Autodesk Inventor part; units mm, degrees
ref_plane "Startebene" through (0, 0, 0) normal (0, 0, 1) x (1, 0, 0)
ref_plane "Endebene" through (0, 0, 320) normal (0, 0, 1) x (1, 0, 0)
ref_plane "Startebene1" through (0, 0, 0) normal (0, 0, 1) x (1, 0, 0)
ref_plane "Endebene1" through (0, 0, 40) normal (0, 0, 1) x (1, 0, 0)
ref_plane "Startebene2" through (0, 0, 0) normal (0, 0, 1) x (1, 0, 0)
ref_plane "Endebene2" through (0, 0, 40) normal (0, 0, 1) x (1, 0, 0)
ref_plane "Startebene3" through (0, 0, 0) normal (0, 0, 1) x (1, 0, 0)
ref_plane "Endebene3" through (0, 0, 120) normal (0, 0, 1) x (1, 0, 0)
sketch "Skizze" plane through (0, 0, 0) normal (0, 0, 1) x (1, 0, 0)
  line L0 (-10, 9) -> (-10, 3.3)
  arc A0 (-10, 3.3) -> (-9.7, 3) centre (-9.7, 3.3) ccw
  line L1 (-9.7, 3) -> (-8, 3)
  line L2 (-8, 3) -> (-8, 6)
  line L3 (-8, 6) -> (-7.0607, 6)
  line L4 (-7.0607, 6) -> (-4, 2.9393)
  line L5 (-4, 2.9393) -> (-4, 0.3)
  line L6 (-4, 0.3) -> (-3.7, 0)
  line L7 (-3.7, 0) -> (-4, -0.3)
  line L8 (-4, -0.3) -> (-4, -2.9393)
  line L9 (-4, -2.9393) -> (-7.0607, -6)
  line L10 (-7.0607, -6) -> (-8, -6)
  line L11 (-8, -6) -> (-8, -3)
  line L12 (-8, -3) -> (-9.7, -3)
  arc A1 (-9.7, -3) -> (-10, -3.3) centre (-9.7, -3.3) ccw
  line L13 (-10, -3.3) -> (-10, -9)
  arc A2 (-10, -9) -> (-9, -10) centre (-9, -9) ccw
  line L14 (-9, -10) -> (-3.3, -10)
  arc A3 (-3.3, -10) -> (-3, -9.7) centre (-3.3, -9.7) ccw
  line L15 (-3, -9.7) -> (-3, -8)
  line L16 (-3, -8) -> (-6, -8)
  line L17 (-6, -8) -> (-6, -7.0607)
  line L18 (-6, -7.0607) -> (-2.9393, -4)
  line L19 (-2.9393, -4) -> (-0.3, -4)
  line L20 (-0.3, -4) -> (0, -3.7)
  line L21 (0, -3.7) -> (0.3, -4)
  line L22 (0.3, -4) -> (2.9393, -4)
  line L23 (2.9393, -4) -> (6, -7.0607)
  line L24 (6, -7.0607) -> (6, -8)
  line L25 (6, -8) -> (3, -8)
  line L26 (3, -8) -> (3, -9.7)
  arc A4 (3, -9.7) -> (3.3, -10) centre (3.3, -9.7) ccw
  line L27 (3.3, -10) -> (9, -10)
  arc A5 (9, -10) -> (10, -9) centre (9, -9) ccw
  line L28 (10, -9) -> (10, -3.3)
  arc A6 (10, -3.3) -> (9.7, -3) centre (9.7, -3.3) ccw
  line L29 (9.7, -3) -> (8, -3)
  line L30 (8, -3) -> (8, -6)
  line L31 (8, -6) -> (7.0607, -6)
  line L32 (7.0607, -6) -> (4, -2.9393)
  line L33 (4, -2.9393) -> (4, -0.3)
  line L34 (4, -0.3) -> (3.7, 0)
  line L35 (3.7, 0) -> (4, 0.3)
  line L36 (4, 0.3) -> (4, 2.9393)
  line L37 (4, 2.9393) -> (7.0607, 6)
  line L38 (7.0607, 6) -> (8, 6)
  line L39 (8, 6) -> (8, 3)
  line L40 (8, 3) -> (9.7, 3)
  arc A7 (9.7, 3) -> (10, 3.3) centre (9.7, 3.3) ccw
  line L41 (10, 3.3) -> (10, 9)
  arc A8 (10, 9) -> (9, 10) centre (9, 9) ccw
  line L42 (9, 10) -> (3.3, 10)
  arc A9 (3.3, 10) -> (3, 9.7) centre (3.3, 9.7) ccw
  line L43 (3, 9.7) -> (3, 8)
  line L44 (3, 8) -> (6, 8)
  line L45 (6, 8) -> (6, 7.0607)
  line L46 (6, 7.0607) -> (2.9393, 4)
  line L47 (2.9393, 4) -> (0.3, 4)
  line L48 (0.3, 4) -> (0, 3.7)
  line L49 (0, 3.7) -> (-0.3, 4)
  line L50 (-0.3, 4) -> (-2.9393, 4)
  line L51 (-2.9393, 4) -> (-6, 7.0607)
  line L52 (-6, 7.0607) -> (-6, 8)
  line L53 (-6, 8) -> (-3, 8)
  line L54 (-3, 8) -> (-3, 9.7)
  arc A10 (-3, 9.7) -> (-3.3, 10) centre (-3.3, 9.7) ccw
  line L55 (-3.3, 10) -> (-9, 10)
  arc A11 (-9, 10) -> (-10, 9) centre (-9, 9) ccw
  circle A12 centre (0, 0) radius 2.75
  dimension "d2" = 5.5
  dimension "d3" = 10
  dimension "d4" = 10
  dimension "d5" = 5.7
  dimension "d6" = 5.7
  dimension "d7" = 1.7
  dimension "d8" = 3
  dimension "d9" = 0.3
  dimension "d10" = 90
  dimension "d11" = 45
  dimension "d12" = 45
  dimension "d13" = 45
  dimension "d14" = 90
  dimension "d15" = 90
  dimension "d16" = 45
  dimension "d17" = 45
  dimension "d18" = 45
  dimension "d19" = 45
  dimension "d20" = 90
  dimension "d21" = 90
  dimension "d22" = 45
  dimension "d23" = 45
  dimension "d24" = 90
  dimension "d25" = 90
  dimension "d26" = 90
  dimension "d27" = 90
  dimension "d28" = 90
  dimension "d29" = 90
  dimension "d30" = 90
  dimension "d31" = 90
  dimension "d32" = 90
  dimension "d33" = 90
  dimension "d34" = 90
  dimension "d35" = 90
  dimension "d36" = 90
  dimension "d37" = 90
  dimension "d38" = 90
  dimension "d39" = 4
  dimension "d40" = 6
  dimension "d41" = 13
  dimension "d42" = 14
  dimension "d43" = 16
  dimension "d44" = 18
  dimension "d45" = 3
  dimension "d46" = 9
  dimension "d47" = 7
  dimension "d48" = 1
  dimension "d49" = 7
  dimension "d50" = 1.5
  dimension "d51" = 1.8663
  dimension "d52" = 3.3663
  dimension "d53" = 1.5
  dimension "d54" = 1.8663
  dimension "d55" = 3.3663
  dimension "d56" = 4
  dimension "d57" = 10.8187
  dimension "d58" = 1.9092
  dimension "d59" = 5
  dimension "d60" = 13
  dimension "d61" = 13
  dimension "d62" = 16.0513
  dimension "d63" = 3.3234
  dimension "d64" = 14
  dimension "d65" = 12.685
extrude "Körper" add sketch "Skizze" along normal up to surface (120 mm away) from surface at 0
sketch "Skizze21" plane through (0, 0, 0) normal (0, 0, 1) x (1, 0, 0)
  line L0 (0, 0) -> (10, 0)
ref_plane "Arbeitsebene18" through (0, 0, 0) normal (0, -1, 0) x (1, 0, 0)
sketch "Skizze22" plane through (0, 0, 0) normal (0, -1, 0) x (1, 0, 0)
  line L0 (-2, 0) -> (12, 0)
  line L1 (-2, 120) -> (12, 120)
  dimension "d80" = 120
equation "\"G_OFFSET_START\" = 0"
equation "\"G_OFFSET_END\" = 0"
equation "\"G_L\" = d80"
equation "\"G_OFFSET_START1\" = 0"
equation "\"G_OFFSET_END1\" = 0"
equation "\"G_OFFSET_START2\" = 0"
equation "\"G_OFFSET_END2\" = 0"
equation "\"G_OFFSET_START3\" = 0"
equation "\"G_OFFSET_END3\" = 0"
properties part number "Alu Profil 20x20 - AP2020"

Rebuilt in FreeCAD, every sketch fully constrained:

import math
import FreeCAD as App
import Part
import Sketcher
Q = App.Units.Quantity

doc = App.newDocument("Part")
body = doc.addObject("PartDesign::Body", "Body")

sketch1 = doc.addObject("Sketcher::SketchObject", "Sketch")
body.addObject(sketch1)
sketch1.AttachmentSupport = (doc.XY_Plane, [""])
sketch1.MapMode = "FlatFace"
sketch1.addGeometry([
    Part.ArcOfCircle(Part.Circle(App.Vector(-9, 9, 0), App.Vector(0, 0, 1), 1), math.radians(90), math.radians(180)),
    Part.LineSegment(App.Vector(-10, 9, 0), App.Vector(-10, 3.3, 0)),
    Part.ArcOfCircle(Part.Circle(App.Vector(-9.7, 3.3, 0), App.Vector(0, 0, 1), 0.3), math.radians(180), math.radians(270)),
    Part.LineSegment(App.Vector(-9.7, 3, 0), App.Vector(-8, 3, 0)),
    Part.LineSegment(App.Vector(-8, 3, 0), App.Vector(-8, 6, 0)),
    Part.LineSegment(App.Vector(-8, 6, 0), App.Vector(-7.0607, 6, 0)),
    Part.LineSegment(App.Vector(-7.0607, 6, 0), App.Vector(-4, 2.9393, 0)),
    Part.LineSegment(App.Vector(-4, 2.9393, 0), App.Vector(-4, 0.3, 0)),
    Part.LineSegment(App.Vector(-4, 0.3, 0), App.Vector(-3.7, 0, 0)),
    Part.LineSegment(App.Vector(-3.7, 0, 0), App.Vector(-4, -0.3, 0)),
    Part.LineSegment(App.Vector(-4, -0.3, 0), App.Vector(-4, -2.9393, 0)),
    Part.LineSegment(App.Vector(-4, -2.9393, 0), App.Vector(-7.0607, -6, 0)),
    Part.LineSegment(App.Vector(-7.0607, -6, 0), App.Vector(-8, -6, 0)),
    Part.LineSegment(App.Vector(-8, -6, 0), App.Vector(-8, -3, 0)),
    Part.LineSegment(App.Vector(-8, -3, 0), App.Vector(-9.7, -3, 0)),
    Part.ArcOfCircle(Part.Circle(App.Vector(-9.7, -3.3, 0), App.Vector(0, 0, 1), 0.3), math.radians(90), math.radians(180)),
    Part.LineSegment(App.Vector(-10, -3.3, 0), App.Vector(-10, -9, 0)),
    Part.ArcOfCircle(Part.Circle(App.Vector(-9, -9, 0), App.Vector(0, 0, 1), 1), math.radians(180), math.radians(270)),
    Part.LineSegment(App.Vector(-9, -10, 0), App.Vector(-3.3, -10, 0)),
    Part.ArcOfCircle(Part.Circle(App.Vector(-3.3, -9.7, 0), App.Vector(0, 0, 1), 0.3), math.radians(-90), math.radians(0)),
    Part.LineSegment(App.Vector(-3, -9.7, 0), App.Vector(-3, -8, 0)),
    Part.LineSegment(App.Vector(-3, -8, 0), App.Vector(-6, -8, 0)),
    Part.LineSegment(App.Vector(-6, -8, 0), App.Vector(-6, -7.0607, 0)),
    Part.LineSegment(App.Vector(-6, -7.0607, 0), App.Vector(-2.9393, -4, 0)),
    Part.LineSegment(App.Vector(-2.9393, -4, 0), App.Vector(-0.3, -4, 0)),
    Part.LineSegment(App.Vector(-0.3, -4, 0), App.Vector(0, -3.7, 0)),
    Part.LineSegment(App.Vector(0, -3.7, 0), App.Vector(0.3, -4, 0)),
    Part.LineSegment(App.Vector(0.3, -4, 0), App.Vector(2.9393, -4, 0)),
    Part.LineSegment(App.Vector(2.9393, -4, 0), App.Vector(6, -7.0607, 0)),
    Part.LineSegment(App.Vector(6, -7.0607, 0), App.Vector(6, -8, 0)),
    Part.LineSegment(App.Vector(6, -8, 0), App.Vector(3, -8, 0)),
    Part.LineSegment(App.Vector(3, -8, 0), App.Vector(3, -9.7, 0)),
    Part.ArcOfCircle(Part.Circle(App.Vector(3.3, -9.7, 0), App.Vector(0, 0, 1), 0.3), math.radians(180), math.radians(270)),
    Part.LineSegment(App.Vector(3.3, -10, 0), App.Vector(9, -10, 0)),
    Part.ArcOfCircle(Part.Circle(App.Vector(9, -9, 0), App.Vector(0, 0, 1), 1), math.radians(-90), math.radians(0)),
    Part.LineSegment(App.Vector(10, -9, 0), App.Vector(10, -3.3, 0)),
    Part.ArcOfCircle(Part.Circle(App.Vector(9.7, -3.3, 0), App.Vector(0, 0, 1), 0.3), math.radians(0), math.radians(90)),
    Part.LineSegment(App.Vector(9.7, -3, 0), App.Vector(8, -3, 0)),
    Part.LineSegment(App.Vector(8, -3, 0), App.Vector(8, -6, 0)),
    Part.LineSegment(App.Vector(8, -6, 0), App.Vector(7.0607, -6, 0)),
    Part.LineSegment(App.Vector(7.0607, -6, 0), App.Vector(4, -2.9393, 0)),
    Part.LineSegment(App.Vector(4, -2.9393, 0), App.Vector(4, -0.3, 0)),
    Part.LineSegment(App.Vector(4, -0.3, 0), App.Vector(3.7, 0, 0)),
    Part.LineSegment(App.Vector(3.7, 0, 0), App.Vector(4, 0.3, 0)),
    Part.LineSegment(App.Vector(4, 0.3, 0), App.Vector(4, 2.9393, 0)),
    Part.LineSegment(App.Vector(4, 2.9393, 0), App.Vector(7.0607, 6, 0)),
    Part.LineSegment(App.Vector(7.0607, 6, 0), App.Vector(8, 6, 0)),
    Part.LineSegment(App.Vector(8, 6, 0), App.Vector(8, 3, 0)),
    Part.LineSegment(App.Vector(8, 3, 0), App.Vector(9.7, 3, 0)),
    Part.ArcOfCircle(Part.Circle(App.Vector(9.7, 3.3, 0), App.Vector(0, 0, 1), 0.3), math.radians(-90), math.radians(0)),
    Part.LineSegment(App.Vector(10, 3.3, 0), App.Vector(10, 9, 0)),
    Part.ArcOfCircle(Part.Circle(App.Vector(9, 9, 0), App.Vector(0, 0, 1), 1), math.radians(0), math.radians(90)),
    Part.LineSegment(App.Vector(9, 10, 0), App.Vector(3.3, 10, 0)),
    Part.ArcOfCircle(Part.Circle(App.Vector(3.3, 9.7, 0), App.Vector(0, 0, 1), 0.3), math.radians(90), math.radians(180)),
    Part.LineSegment(App.Vector(3, 9.7, 0), App.Vector(3, 8, 0)),
    Part.LineSegment(App.Vector(3, 8, 0), App.Vector(6, 8, 0)),
    Part.LineSegment(App.Vector(6, 8, 0), App.Vector(6, 7.0607, 0)),
    Part.LineSegment(App.Vector(6, 7.0607, 0), App.Vector(2.9393, 4, 0)),
    Part.LineSegment(App.Vector(2.9393, 4, 0), App.Vector(0.3, 4, 0)),
    Part.LineSegment(App.Vector(0.3, 4, 0), App.Vector(0, 3.7, 0)),
    Part.LineSegment(App.Vector(0, 3.7, 0), App.Vector(-0.3, 4, 0)),
    Part.LineSegment(App.Vector(-0.3, 4, 0), App.Vector(-2.9393, 4, 0)),
    Part.LineSegment(App.Vector(-2.9393, 4, 0), App.Vector(-6, 7.0607, 0)),
    Part.LineSegment(App.Vector(-6, 7.0607, 0), App.Vector(-6, 8, 0)),
    Part.LineSegment(App.Vector(-6, 8, 0), App.Vector(-3, 8, 0)),
    Part.LineSegment(App.Vector(-3, 8, 0), App.Vector(-3, 9.7, 0)),
    Part.ArcOfCircle(Part.Circle(App.Vector(-3.3, 9.7, 0), App.Vector(0, 0, 1), 0.3), math.radians(0), math.radians(90)),
    Part.LineSegment(App.Vector(-3.3, 10, 0), App.Vector(-9, 10, 0)),
    Part.Circle(App.Vector(0, 0, 0), App.Vector(0, 0, 1), 2.75),
], False)
sketch1.addConstraint([
    Sketcher.Constraint("Tangent", 0, 2, 1, 1),
    Sketcher.Constraint("Tangent", 1, 2, 2, 1),
    Sketcher.Constraint("Tangent", 2, 2, 3, 1),
    Sketcher.Constraint("Coincident", 3, 2, 4, 1),
    Sketcher.Constraint("Coincident", 4, 2, 5, 1),
    Sketcher.Constraint("Coincident", 5, 2, 6, 1),
    Sketcher.Constraint("Coincident", 6, 2, 7, 1),
    Sketcher.Constraint("Coincident", 7, 2, 8, 1),
    Sketcher.Constraint("Coincident", 8, 2, 9, 1),
    Sketcher.Constraint("Coincident", 9, 2, 10, 1),
    Sketcher.Constraint("Coincident", 10, 2, 11, 1),
    Sketcher.Constraint("Coincident", 11, 2, 12, 1),
    Sketcher.Constraint("Coincident", 12, 2, 13, 1),
    Sketcher.Constraint("Coincident", 13, 2, 14, 1),
    Sketcher.Constraint("Tangent", 14, 2, 15, 1),
    Sketcher.Constraint("Tangent", 15, 2, 16, 1),
    Sketcher.Constraint("Tangent", 16, 2, 17, 1),
    Sketcher.Constraint("Tangent", 17, 2, 18, 1),
    Sketcher.Constraint("Tangent", 18, 2, 19, 1),
    Sketcher.Constraint("Tangent", 19, 2, 20, 1),
    Sketcher.Constraint("Coincident", 20, 2, 21, 1),
    Sketcher.Constraint("Coincident", 21, 2, 22, 1),
    Sketcher.Constraint("Coincident", 22, 2, 23, 1),
    Sketcher.Constraint("Coincident", 23, 2, 24, 1),
    Sketcher.Constraint("Coincident", 24, 2, 25, 1),
    Sketcher.Constraint("Coincident", 25, 2, 26, 1),
    Sketcher.Constraint("Coincident", 26, 2, 27, 1),
    Sketcher.Constraint("Coincident", 27, 2, 28, 1),
    Sketcher.Constraint("Coincident", 28, 2, 29, 1),
    Sketcher.Constraint("Coincident", 29, 2, 30, 1),
    Sketcher.Constraint("Coincident", 30, 2, 31, 1),
    Sketcher.Constraint("Tangent", 31, 2, 32, 1),
    Sketcher.Constraint("Tangent", 32, 2, 33, 1),
    Sketcher.Constraint("Tangent", 33, 2, 34, 1),
    Sketcher.Constraint("Tangent", 34, 2, 35, 1),
    Sketcher.Constraint("Tangent", 35, 2, 36, 1),
    Sketcher.Constraint("Tangent", 36, 2, 37, 1),
    Sketcher.Constraint("Coincident", 37, 2, 38, 1),
    Sketcher.Constraint("Coincident", 38, 2, 39, 1),
    Sketcher.Constraint("Coincident", 39, 2, 40, 1),
    Sketcher.Constraint("Coincident", 40, 2, 41, 1),
    Sketcher.Constraint("Coincident", 41, 2, 42, 1),
    Sketcher.Constraint("Coincident", 42, 2, 43, 1),
    Sketcher.Constraint("Coincident", 43, 2, 44, 1),
    Sketcher.Constraint("Coincident", 44, 2, 45, 1),
    Sketcher.Constraint("Coincident", 45, 2, 46, 1),
    Sketcher.Constraint("Coincident", 46, 2, 47, 1),
    Sketcher.Constraint("Coincident", 47, 2, 48, 1),
    Sketcher.Constraint("Tangent", 48, 2, 49, 1),
    Sketcher.Constraint("Tangent", 49, 2, 50, 1),
    Sketcher.Constraint("Tangent", 50, 2, 51, 1),
    Sketcher.Constraint("Tangent", 51, 2, 52, 1),
    Sketcher.Constraint("Tangent", 52, 2, 53, 1),
    Sketcher.Constraint("Tangent", 53, 2, 54, 1),
    Sketcher.Constraint("Coincident", 54, 2, 55, 1),
    Sketcher.Constraint("Coincident", 55, 2, 56, 1),
    Sketcher.Constraint("Coincident", 56, 2, 57, 1),
    Sketcher.Constraint("Coincident", 57, 2, 58, 1),
    Sketcher.Constraint("Coincident", 58, 2, 59, 1),
    Sketcher.Constraint("Coincident", 59, 2, 60, 1),
    Sketcher.Constraint("Coincident", 60, 2, 61, 1),
    Sketcher.Constraint("Coincident", 61, 2, 62, 1),
    Sketcher.Constraint("Coincident", 62, 2, 63, 1),
    Sketcher.Constraint("Coincident", 63, 2, 64, 1),
    Sketcher.Constraint("Coincident", 64, 2, 65, 1),
    Sketcher.Constraint("Tangent", 65, 2, 66, 1),
    Sketcher.Constraint("Tangent", 66, 2, 67, 1),
    Sketcher.Constraint("Tangent", 67, 2, 0, 1),
    Sketcher.Constraint("Vertical", 1),
    Sketcher.Constraint("Horizontal", 3),
    Sketcher.Constraint("Vertical", 4),
    Sketcher.Constraint("Horizontal", 5),
    Sketcher.Constraint("Vertical", 7),
    Sketcher.Constraint("Vertical", 10),
    Sketcher.Constraint("Horizontal", 12),
    Sketcher.Constraint("Vertical", 13),
    Sketcher.Constraint("Horizontal", 14),
    Sketcher.Constraint("Vertical", 16),
    Sketcher.Constraint("Horizontal", 18),
    Sketcher.Constraint("Vertical", 20),
    Sketcher.Constraint("Horizontal", 21),
    Sketcher.Constraint("Vertical", 22),
    Sketcher.Constraint("Horizontal", 24),
    Sketcher.Constraint("Horizontal", 27),
    Sketcher.Constraint("Vertical", 29),
    Sketcher.Constraint("Horizontal", 30),
    Sketcher.Constraint("Vertical", 31),
    Sketcher.Constraint("Horizontal", 33),
    Sketcher.Constraint("Vertical", 35),
    Sketcher.Constraint("Horizontal", 37),
    Sketcher.Constraint("Vertical", 38),
    Sketcher.Constraint("Horizontal", 39),
    Sketcher.Constraint("Vertical", 41),
    Sketcher.Constraint("Vertical", 44),
    Sketcher.Constraint("Horizontal", 46),
    Sketcher.Constraint("Vertical", 47),
    Sketcher.Constraint("Horizontal", 48),
    Sketcher.Constraint("Vertical", 50),
    Sketcher.Constraint("Horizontal", 52),
    Sketcher.Constraint("Vertical", 54),
    Sketcher.Constraint("Horizontal", 55),
    Sketcher.Constraint("Vertical", 56),
    Sketcher.Constraint("Horizontal", 58),
    Sketcher.Constraint("Horizontal", 61),
    Sketcher.Constraint("Vertical", 63),
    Sketcher.Constraint("Horizontal", 64),
    Sketcher.Constraint("Vertical", 65),
    Sketcher.Constraint("Horizontal", 67),
    Sketcher.Constraint("Coincident", 68, 3, -1, 1),
    Sketcher.Constraint("Equal", 2, 15),
    Sketcher.Constraint("Equal", 0, 17),
    Sketcher.Constraint("Equal", 15, 19),
    Sketcher.Constraint("Equal", 19, 32),
    Sketcher.Constraint("Equal", 17, 34),
    Sketcher.Constraint("Equal", 32, 36),
    Sketcher.Constraint("Equal", 36, 49),
    Sketcher.Constraint("Equal", 34, 51),
    Sketcher.Constraint("Equal", 49, 53),
    Sketcher.Constraint("Equal", 53, 66),
    Sketcher.Constraint("Symmetric", 0, 3, 34, 3, -1, 1),
    Sketcher.Constraint("Symmetric", 15, 3, 49, 3, -1, 1),
    Sketcher.Constraint("Symmetric", 19, 3, 53, 3, -1, 1),
    Sketcher.Constraint("Symmetric", 3, 2, 37, 2, -1, 1),
    Sketcher.Constraint("Symmetric", 5, 2, 39, 2, -1, 1),
    Sketcher.Constraint("Symmetric", 6, 2, 40, 2, -1, 1),
    Sketcher.Constraint("Symmetric", 8, 2, 42, 2, -1, 1),
    Sketcher.Constraint("Symmetric", 9, 2, 43, 2, -1, 1),
    Sketcher.Constraint("Symmetric", 11, 2, 45, 2, -1, 1),
    Sketcher.Constraint("Symmetric", 21, 2, 55, 2, -1, 1),
    Sketcher.Constraint("Symmetric", 23, 2, 57, 2, -1, 1),
    Sketcher.Constraint("Symmetric", 25, 2, 59, 2, -1, 1),
    Sketcher.Constraint("Symmetric", 26, 2, 60, 2, -1, 1),
    Sketcher.Constraint("Symmetric", 28, 2, 62, 2, -1, 1),
    Sketcher.Constraint("Symmetric", 30, 2, 64, 2, -1, 1),
    Sketcher.Constraint("Symmetric", 19, 3, 32, 3, -2),
    Sketcher.Constraint("Symmetric", 15, 3, 36, 3, -2),
    Sketcher.Constraint("Symmetric", 24, 2, 26, 2, -2),
    Sketcher.Constraint("Symmetric", 22, 2, 28, 2, -2),
    Sketcher.Constraint("Symmetric", 12, 2, 38, 2, -2),
    Sketcher.Constraint("Symmetric", 10, 2, 40, 2, -2),
    Sketcher.Constraint("PointOnObject", 8, 2, -1),
    Sketcher.Constraint("PointOnObject", 25, 2, -2),
    Sketcher.Constraint("Parallel", 6, 8),
    Sketcher.Constraint("Perpendicular", 8, 9),
    Sketcher.Constraint("Parallel", 9, 11),
    Sketcher.Constraint("Parallel", 11, 23),
    Sketcher.Constraint("Parallel", 23, 25),
    Sketcher.Constraint("Perpendicular", 25, 26),
    Sketcher.Constraint("Parallel", 26, 28),
    Sketcher.Constraint("Parallel", 40, 42),
    Sketcher.Constraint("Parallel", 43, 45),
    Sketcher.Constraint("Parallel", 45, 57),
    Sketcher.Constraint("Parallel", 57, 59),
    Sketcher.Constraint("Parallel", 60, 62),
    Sketcher.Constraint("Horizontal", 21, 2, 29, 2),
    Sketcher.Constraint("Vertical", 38, 2, 46, 2),
    Sketcher.Constraint("Equal", 67, 1),
    Sketcher.Constraint("Equal", 64, 4),
    Sketcher.Constraint("Equal", 61, 7),
    Sketcher.Constraint("Equal", 48, 20),
    Sketcher.Constraint("Equal", 46, 22),
    Sketcher.Constraint("Equal", 11, 23),
    Sketcher.Constraint("Equal", 9, 25),
    Sketcher.Constraint("Radius", 0, Q("1 mm")),
    Sketcher.Constraint("Diameter", 68, Q("5.5 mm")),
    Sketcher.Constraint("Radius", 2, Q("0.3 mm")),
    Sketcher.Constraint("DistanceX", 21, 2, 21, 1, Q("3 mm")),
    Sketcher.Constraint("DistanceX", 3, 1, 3, 2, Q("1.7 mm")),
    Sketcher.Constraint("DistanceX", 18, 1, 18, 2, Q("5.7 mm")),
    Sketcher.Constraint("DistanceX", 0, 3, -1, 1, Q("9 mm")),
    Sketcher.Constraint("DistanceX", 6, 2, -1, 1, Q("4 mm")),
    Sketcher.Constraint("DistanceY", -1, 1, 7, 2, Q("0.3 mm")),
    Sketcher.Constraint("DistanceX", 5, 1, 5, 2, Q("0.9393 mm")),
])
pad1 = doc.addObject("PartDesign::Pad", "Pad")
body.addObject(pad1)
pad1.Profile = sketch1
pad1.Length = 120

doc.recompute()
